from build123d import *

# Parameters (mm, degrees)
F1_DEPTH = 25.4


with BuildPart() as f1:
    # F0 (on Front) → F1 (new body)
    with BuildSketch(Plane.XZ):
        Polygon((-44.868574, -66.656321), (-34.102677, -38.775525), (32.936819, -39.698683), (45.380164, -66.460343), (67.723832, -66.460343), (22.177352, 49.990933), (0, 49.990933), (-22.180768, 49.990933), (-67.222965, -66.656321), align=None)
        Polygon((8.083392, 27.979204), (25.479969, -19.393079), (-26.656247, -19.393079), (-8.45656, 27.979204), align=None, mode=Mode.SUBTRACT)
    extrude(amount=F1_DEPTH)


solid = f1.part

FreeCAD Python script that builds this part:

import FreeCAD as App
import Part
import Sketcher
Q = App.Units.Quantity


def add_polygon(sketch, points):
    """Adds a closed chain of lines whose ends are joined by coincident constraints."""
    first, n = sketch.GeometryCount, len(points)
    for a, b in zip(points, points[1:] + points[:1]):
        sketch.addGeometry(Part.LineSegment(App.Vector(*a, 0), App.Vector(*b, 0)), False)
    for i in range(n):
        sketch.addConstraint(Sketcher.Constraint("Coincident", first + i, 2, first + (i + 1) % n, 1))

doc = App.newDocument("Part")
params = doc.addObject("Spreadsheet::Sheet", "Params")
for row, (alias, value) in enumerate([
    ("pad1_length", "1 in"),
], start=1):
    params.set(f"A{row}", alias)
    params.set(f"B{row}", "=" + value)
    params.setAlias(f"B{row}", alias)

body = doc.addObject("PartDesign::Body", "Body")

# Sketch on XZ plane
sketch1 = body.newObject("Sketcher::SketchObject", "Sketch")
sketch1.AttachmentSupport = (doc.getObject("XZ_Plane"), [""])
sketch1.MapMode = "FlatFace"
add_polygon(sketch1, [(-44.868574, -66.656321), (-34.102677, -38.775525), (32.936819, -39.698683), (45.380164, -66.460343), (67.723832, -66.460343), (22.177352, 49.990933), (-22.180768, 49.990933), (-67.222965, -66.656321)])  # lines 0-7
add_polygon(sketch1, [(-8.45656, 27.979204), (8.083392, 27.979204), (25.479969, -19.393079), (-26.656247, -19.393079)])  # lines 8-11
sketch1.addConstraint([
    Sketcher.Constraint("Horizontal", 3),
    Sketcher.Constraint("Horizontal", 5),
    Sketcher.Constraint("Horizontal", 7),
    Sketcher.Constraint("Horizontal", 8),
    Sketcher.Constraint("Horizontal", 10),
    Sketcher.Constraint("Parallel", 0, 6),
    Sketcher.Constraint("Equal", 4, 6),
    Sketcher.Constraint("DistanceX", 7, 2, 2, 2, Q("3.5530999 in")),
    Sketcher.Constraint("DistanceX", 3, 1, 3, 2, 22.343668),
    Sketcher.Constraint("DistanceX", 5, 2, 5, 1, 44.35812),
    Sketcher.Constraint("DistanceX", 7, 1, 7, 2, 22.354391),
    Sketcher.Constraint("DistanceX", 8, 1, 8, 2, 16.539952),
    Sketcher.Constraint("DistanceX", 5, 2, 3, 2, 89.9046),
    Sketcher.Constraint("Distance", 1, 67.045852),
    Sketcher.Constraint("Distance", 4, 125.041519),
    Sketcher.Constraint("DistanceX", 10, 2, 10, 1, 52.136216),
    Sketcher.Constraint("DistanceX", -1, 1, 1, 2, 32.936819),
    Sketcher.Constraint("DistanceX", -1, 1, 3, 2, 67.723832),
    Sketcher.Constraint("DistanceY", 6, 2, -1, 1, 66.656321),
    Sketcher.Constraint("DistanceX", -1, 1, 9, 2, 25.479969),
    Sketcher.Constraint("DistanceY", 9, 2, -1, 1, 19.393079),
    Sketcher.Constraint("DistanceX", 11, 2, -1, 1, 8.45656),
    Sketcher.Constraint("DistanceY", 1, 2, 0, 2, 0.923158),
    Sketcher.Constraint("DistanceY", 8, 2, 4, 2, 22.011729),
])
pad1 = body.newObject("PartDesign::Pad", "Pad")
pad1.Profile = sketch1
pad1.setExpression("Length", "Params.pad1_length")

doc.recompute()
